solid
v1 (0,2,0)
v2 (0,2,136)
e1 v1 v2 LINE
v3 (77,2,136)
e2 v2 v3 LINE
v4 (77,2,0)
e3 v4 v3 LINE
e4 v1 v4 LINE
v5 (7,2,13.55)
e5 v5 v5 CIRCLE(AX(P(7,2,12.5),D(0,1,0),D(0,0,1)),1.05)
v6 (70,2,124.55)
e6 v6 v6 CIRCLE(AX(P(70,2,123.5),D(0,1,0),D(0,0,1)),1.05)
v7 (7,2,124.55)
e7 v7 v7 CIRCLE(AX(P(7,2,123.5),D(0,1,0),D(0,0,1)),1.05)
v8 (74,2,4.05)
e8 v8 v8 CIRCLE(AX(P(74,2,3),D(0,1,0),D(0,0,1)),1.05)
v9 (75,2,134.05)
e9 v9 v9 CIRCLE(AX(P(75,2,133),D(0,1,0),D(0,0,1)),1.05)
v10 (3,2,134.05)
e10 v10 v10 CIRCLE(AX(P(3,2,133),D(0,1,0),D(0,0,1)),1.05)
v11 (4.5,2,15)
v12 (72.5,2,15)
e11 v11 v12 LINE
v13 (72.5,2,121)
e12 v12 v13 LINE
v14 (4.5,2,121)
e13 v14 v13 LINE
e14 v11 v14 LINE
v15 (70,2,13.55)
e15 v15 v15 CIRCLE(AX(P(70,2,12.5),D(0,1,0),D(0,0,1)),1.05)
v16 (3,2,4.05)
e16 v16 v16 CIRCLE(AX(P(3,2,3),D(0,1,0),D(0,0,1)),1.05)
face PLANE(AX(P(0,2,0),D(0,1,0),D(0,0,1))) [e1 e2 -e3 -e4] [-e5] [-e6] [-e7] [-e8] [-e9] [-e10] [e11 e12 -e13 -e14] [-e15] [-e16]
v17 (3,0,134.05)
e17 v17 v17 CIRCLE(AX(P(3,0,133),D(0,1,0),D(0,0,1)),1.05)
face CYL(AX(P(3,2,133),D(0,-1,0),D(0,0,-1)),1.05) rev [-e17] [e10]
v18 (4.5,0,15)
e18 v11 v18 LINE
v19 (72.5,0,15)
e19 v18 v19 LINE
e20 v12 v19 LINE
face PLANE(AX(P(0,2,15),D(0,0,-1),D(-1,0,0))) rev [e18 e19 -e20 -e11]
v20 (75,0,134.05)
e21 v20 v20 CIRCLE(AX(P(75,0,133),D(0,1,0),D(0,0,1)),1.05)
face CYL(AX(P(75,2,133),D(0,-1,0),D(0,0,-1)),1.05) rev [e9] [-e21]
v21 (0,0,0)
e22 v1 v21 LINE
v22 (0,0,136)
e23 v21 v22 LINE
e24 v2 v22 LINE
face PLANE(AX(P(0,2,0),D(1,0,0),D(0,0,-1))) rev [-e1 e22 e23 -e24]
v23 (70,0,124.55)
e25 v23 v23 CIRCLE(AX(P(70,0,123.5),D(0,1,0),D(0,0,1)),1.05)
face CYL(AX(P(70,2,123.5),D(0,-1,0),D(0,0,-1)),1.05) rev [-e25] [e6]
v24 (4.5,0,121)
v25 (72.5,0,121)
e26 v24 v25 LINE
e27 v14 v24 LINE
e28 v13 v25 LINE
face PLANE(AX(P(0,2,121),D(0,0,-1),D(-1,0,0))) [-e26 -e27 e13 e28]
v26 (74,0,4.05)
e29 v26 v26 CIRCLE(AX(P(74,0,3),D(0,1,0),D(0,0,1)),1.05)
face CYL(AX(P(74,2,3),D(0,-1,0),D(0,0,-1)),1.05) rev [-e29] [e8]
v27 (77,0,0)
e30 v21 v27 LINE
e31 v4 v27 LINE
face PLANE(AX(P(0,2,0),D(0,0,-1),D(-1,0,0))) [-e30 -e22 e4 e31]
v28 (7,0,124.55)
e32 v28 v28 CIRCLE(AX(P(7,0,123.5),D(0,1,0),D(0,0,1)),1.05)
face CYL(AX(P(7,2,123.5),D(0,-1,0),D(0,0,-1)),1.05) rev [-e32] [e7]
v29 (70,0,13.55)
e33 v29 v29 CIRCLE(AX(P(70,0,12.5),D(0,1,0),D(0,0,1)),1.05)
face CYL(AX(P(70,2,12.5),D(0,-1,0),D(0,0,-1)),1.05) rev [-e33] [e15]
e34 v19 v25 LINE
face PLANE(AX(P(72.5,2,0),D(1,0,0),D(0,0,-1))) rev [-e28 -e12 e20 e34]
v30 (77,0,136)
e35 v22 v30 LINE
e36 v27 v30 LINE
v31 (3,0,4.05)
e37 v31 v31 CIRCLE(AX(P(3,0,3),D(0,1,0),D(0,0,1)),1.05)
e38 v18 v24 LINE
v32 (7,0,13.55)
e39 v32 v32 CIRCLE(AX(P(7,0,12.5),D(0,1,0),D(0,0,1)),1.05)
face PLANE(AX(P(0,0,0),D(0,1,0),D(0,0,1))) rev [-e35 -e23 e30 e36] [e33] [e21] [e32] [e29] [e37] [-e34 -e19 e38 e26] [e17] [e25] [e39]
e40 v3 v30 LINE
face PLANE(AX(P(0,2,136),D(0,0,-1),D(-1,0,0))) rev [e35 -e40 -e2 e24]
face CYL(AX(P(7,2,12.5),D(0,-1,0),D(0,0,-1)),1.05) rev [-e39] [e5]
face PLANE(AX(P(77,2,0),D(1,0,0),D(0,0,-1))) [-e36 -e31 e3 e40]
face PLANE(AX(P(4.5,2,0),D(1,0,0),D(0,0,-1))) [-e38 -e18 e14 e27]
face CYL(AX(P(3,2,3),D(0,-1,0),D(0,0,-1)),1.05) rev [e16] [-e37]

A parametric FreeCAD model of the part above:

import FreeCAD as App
import Part
import Sketcher
from FreeCAD import Vector

doc = App.newDocument("Part")
body = doc.addObject("PartDesign::Body", "Body")

# Sketch on XZ plane
sketch1 = body.newObject("Sketcher::SketchObject", "Sketch")
sketch1.AttachmentSupport = (doc.getObject("XZ_Plane"), [""])
sketch1.MapMode = "FlatFace"
sketch1.addGeometry([
    Part.LineSegment(Vector(0, 0, 0), Vector(0, 136, 0)),  # 0
    Part.LineSegment(Vector(0, 136, 0), Vector(77, 136, 0)),  # 1
    Part.LineSegment(Vector(77, 136, 0), Vector(77, 0, 0)),  # 2
    Part.LineSegment(Vector(77, 0, 0), Vector(0, 0, 0)),  # 3
    Part.Circle(Vector(3, 133, 0), Vector(0, 0, 1), 1.1),  # 4
    Part.Circle(Vector(7, 123.5, 0), Vector(0, 0, 1), 1.1),  # 5
    Part.Circle(Vector(75, 133, 0), Vector(0, 0, 1), 1.1),  # 6
    Part.Circle(Vector(70, 123.5, 0), Vector(0, 0, 1), 1.1),  # 7
    Part.LineSegment(Vector(72.5, 121, 0), Vector(4.5, 121, 0)),  # 8
    Part.LineSegment(Vector(4.5, 121, 0), Vector(4.5, 15, 0)),  # 9
    Part.LineSegment(Vector(4.5, 15, 0), Vector(72.5, 15, 0)),  # 10
    Part.LineSegment(Vector(72.5, 15, 0), Vector(72.5, 121, 0)),  # 11
    Part.Circle(Vector(7, 12.5, 0), Vector(0, 0, 1), 1.1),  # 12
    Part.Circle(Vector(3, 3, 0), Vector(0, 0, 1), 1.1),  # 13
    Part.Circle(Vector(70, 12.5, 0), Vector(0, 0, 1), 1.1),  # 14
    Part.Circle(Vector(74, 3, 0), Vector(0, 0, 1), 1.1),  # 15
], False)
sketch1.addConstraint([
    Sketcher.Constraint("Coincident", 0, 2, 1, 1),
    Sketcher.Constraint("Coincident", 1, 2, 2, 1),
    Sketcher.Constraint("Coincident", 2, 2, 3, 1),
    Sketcher.Constraint("Coincident", 3, 2, 0, 1),
    Sketcher.Constraint("Coincident", 8, 2, 9, 1),
    Sketcher.Constraint("Coincident", 9, 2, 10, 1),
    Sketcher.Constraint("Coincident", 10, 2, 11, 1),
    Sketcher.Constraint("Coincident", 11, 2, 8, 1),
    Sketcher.Constraint("Vertical", 0),
    Sketcher.Constraint("Horizontal", 1),
    Sketcher.Constraint("Vertical", 2),
    Sketcher.Constraint("Horizontal", 3),
    Sketcher.Constraint("Horizontal", 8),
    Sketcher.Constraint("Vertical", 9),
    Sketcher.Constraint("Horizontal", 10),
    Sketcher.Constraint("Vertical", 11),
    Sketcher.Constraint("Coincident", 3, 2, -1, 1),
    Sketcher.Constraint("Equal", 4, 5),
    Sketcher.Constraint("Equal", 5, 6),
    Sketcher.Constraint("Equal", 6, 7),
    Sketcher.Constraint("Equal", 7, 12),
    Sketcher.Constraint("Equal", 12, 13),
    Sketcher.Constraint("Equal", 13, 14),
    Sketcher.Constraint("Equal", 14, 15),
    Sketcher.Constraint("Horizontal", 4, 3, 6, 3),
    Sketcher.Constraint("Horizontal", 5, 3, 7, 3),
    Sketcher.Constraint("Horizontal", 12, 3, 14, 3),
    Sketcher.Constraint("Horizontal", 13, 3, 15, 3),
    Sketcher.Constraint("Vertical", 5, 3, 12, 3),
    Sketcher.Constraint("Vertical", 4, 3, 13, 3),
    Sketcher.Constraint("Vertical", 7, 3, 14, 3),
    Sketcher.Constraint("Diameter", 4, 2.1),
    Sketcher.Constraint("DistanceX", 1, 1, 1, 2, 77.0),
    Sketcher.Constraint("DistanceX", 8, 2, 8, 1, 68.0),
    Sketcher.Constraint("DistanceY", 0, 1, 0, 2, 136.0),
    Sketcher.Constraint("DistanceY", 9, 2, 9, 1, 106.0),
    Sketcher.Constraint("DistanceX", -1, 1, 4, 3, 3.0),
    Sketcher.Constraint("DistanceY", -1, 1, 4, 3, 133.0),
    Sketcher.Constraint("DistanceX", -1, 1, 5, 3, 7.0),
    Sketcher.Constraint("DistanceX", -1, 1, 6, 3, 75.0),
    Sketcher.Constraint("DistanceX", -1, 1, 7, 3, 70.0),
    Sketcher.Constraint("DistanceY", -1, 1, 13, 3, 3.0),
    Sketcher.Constraint("DistanceX", -1, 1, 15, 3, 74.0),
    Sketcher.Constraint("DistanceY", -1, 1, 8, 2, 121.0),
    Sketcher.Constraint("DistanceY", 12, 3, 5, 3, 111.0),
    Sketcher.Constraint("DistanceY", -1, 1, 5, 3, 123.5),
    Sketcher.Constraint("DistanceX", -1, 1, 8, 2, 4.5),
])
pad1 = body.newObject("PartDesign::Pad", "Pad")
pad1.Profile = sketch1
pad1.Length = 2
pad1.Reversed = True

doc.recompute()
